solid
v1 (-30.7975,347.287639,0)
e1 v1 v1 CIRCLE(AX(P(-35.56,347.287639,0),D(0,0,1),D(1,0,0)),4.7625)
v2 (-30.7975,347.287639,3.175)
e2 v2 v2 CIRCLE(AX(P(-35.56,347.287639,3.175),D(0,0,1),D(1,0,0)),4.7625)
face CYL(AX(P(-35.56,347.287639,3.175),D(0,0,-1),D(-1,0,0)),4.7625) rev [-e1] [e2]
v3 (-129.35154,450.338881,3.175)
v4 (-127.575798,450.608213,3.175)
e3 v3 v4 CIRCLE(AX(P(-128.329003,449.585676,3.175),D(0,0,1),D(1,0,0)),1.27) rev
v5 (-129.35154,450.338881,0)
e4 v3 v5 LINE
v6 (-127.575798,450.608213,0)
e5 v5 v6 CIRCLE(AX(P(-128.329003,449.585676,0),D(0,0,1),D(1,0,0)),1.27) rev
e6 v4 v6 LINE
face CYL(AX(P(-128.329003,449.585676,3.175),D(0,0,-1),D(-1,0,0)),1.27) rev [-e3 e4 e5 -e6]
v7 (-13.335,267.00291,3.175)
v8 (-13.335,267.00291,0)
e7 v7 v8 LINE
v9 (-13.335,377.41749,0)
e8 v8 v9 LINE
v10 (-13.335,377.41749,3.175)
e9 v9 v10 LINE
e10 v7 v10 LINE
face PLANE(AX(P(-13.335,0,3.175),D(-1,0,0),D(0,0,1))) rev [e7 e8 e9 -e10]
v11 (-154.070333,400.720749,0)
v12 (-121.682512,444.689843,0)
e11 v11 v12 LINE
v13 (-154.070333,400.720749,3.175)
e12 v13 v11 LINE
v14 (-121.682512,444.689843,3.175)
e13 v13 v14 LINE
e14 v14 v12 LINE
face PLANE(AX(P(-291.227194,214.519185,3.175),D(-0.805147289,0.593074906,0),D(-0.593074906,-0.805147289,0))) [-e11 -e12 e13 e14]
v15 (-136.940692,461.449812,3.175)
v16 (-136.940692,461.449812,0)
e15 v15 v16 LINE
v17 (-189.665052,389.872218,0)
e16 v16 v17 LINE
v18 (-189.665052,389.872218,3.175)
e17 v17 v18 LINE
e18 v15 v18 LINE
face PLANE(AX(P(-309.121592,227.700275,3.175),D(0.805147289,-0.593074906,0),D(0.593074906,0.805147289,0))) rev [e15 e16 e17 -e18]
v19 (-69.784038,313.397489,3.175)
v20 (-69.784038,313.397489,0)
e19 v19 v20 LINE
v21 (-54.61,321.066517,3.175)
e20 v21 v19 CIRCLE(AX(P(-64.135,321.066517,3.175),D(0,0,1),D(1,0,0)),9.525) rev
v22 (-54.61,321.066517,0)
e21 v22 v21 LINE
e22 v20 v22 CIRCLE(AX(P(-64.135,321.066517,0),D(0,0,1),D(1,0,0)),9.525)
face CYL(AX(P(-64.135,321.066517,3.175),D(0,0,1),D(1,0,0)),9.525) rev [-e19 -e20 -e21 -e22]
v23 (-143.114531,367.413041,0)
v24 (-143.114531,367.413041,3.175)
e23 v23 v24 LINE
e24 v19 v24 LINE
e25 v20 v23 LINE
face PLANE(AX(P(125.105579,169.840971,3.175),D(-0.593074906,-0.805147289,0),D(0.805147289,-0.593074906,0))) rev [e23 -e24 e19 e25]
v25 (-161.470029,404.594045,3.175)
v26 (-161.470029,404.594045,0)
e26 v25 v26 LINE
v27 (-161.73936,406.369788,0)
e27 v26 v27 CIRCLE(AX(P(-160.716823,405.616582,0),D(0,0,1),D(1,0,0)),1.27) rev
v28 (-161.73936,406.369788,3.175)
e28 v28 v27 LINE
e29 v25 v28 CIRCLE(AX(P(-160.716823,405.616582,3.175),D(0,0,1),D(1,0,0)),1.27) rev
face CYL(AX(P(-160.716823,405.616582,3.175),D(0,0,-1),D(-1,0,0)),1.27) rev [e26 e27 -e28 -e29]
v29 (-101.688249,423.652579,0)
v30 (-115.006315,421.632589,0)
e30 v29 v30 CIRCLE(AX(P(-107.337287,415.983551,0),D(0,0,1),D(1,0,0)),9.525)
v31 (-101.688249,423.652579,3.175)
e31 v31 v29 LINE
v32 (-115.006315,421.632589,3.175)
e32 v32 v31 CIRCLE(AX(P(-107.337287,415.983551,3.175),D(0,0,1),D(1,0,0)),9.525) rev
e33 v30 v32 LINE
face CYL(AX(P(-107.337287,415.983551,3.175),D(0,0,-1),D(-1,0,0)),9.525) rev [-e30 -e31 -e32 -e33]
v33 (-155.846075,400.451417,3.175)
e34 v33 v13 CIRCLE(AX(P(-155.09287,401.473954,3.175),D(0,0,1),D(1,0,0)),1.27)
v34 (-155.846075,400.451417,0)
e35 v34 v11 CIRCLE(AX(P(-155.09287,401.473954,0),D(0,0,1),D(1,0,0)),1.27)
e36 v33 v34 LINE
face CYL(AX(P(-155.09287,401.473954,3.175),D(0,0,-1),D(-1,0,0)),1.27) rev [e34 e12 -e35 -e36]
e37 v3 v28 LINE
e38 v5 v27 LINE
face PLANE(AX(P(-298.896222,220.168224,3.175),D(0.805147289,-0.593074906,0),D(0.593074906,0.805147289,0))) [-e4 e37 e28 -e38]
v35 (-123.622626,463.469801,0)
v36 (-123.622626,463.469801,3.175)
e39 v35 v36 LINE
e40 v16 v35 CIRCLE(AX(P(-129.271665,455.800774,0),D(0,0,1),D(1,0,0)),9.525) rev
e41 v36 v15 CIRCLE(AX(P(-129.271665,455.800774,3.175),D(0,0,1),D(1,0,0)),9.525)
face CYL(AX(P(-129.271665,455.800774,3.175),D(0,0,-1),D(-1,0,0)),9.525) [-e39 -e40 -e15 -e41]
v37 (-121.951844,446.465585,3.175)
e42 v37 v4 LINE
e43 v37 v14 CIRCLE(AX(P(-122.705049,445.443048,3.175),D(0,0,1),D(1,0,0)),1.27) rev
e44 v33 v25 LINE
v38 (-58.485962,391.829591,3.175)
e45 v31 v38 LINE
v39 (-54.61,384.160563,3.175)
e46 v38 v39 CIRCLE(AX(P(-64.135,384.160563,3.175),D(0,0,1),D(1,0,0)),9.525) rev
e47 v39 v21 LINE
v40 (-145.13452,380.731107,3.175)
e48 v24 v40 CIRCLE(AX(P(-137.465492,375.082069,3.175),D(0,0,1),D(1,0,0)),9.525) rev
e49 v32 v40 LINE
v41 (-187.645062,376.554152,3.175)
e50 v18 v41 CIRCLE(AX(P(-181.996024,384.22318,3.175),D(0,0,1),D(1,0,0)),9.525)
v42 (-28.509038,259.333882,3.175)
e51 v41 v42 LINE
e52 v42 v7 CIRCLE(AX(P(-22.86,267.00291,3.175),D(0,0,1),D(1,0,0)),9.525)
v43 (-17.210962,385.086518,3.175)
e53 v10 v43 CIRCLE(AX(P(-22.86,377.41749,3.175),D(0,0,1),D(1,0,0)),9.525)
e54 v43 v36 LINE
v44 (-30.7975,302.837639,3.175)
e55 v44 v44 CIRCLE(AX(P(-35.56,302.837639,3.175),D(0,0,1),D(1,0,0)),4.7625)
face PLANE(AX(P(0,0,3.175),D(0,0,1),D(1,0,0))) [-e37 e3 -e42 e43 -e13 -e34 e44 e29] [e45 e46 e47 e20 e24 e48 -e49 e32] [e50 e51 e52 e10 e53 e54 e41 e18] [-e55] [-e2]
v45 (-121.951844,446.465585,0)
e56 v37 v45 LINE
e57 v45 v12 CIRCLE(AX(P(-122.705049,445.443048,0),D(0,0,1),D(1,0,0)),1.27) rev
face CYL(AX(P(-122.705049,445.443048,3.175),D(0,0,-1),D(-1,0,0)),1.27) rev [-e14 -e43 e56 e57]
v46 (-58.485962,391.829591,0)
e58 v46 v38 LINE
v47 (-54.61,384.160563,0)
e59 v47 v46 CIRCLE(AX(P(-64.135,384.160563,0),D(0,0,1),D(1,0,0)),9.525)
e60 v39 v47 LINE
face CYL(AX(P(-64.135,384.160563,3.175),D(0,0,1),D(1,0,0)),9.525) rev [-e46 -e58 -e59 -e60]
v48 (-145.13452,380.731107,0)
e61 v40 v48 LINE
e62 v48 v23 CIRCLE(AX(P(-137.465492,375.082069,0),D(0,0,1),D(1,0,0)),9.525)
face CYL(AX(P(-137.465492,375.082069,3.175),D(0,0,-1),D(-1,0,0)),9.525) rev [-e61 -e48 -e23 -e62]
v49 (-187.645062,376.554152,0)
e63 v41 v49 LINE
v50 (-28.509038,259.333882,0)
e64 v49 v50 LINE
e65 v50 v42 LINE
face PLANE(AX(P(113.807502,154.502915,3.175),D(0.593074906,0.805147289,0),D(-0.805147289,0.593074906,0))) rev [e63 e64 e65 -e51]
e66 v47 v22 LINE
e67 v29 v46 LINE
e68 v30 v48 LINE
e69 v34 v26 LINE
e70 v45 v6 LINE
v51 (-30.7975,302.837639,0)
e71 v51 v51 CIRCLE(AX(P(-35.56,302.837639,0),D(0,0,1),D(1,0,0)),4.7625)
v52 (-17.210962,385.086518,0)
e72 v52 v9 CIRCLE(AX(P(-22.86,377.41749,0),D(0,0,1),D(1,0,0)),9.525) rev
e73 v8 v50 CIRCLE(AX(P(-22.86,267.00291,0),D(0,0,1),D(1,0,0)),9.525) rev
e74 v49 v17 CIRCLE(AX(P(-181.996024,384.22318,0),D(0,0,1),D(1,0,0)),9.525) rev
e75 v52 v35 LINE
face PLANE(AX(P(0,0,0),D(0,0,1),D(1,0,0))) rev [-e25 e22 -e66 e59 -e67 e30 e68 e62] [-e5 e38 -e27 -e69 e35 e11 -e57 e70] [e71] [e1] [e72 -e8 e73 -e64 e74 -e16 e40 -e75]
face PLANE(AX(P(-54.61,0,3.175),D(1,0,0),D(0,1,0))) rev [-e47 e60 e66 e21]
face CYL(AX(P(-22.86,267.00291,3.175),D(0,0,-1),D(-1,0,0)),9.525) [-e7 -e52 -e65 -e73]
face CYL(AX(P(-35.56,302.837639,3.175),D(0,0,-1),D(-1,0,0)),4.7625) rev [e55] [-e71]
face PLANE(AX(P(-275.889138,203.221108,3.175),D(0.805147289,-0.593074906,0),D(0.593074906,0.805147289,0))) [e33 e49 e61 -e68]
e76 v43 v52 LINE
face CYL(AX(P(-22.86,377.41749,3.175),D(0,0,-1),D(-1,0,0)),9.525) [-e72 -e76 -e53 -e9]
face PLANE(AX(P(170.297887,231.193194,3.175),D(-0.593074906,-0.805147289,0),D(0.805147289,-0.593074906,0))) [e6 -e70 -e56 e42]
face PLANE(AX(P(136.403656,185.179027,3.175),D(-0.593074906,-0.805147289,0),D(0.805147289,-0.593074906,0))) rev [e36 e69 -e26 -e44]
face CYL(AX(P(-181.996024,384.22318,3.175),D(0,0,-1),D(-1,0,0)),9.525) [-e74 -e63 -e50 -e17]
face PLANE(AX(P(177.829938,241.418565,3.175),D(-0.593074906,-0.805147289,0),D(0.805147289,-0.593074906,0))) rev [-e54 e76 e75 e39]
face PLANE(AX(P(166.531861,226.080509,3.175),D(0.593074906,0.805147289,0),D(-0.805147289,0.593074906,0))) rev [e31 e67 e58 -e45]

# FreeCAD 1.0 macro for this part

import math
import FreeCAD as App
import Part
import Sketcher
from FreeCAD import Vector
Q = App.Units.Quantity


def edges_at(feature, points):
    """Names of the edges that pass closest to the given points."""
    edges = feature.Shape.Edges
    near = lambda p: min(range(len(edges)), key=lambda i: edges[i].distToShape(Part.Vertex(*p))[0])
    return sorted({f"Edge{near(p) + 1}" for p in points})


def add_polygon(sketch, points):
    """Adds a closed chain of lines whose ends are joined by coincident constraints."""
    first, n = sketch.GeometryCount, len(points)
    for a, b in zip(points, points[1:] + points[:1]):
        sketch.addGeometry(Part.LineSegment(App.Vector(*a, 0), App.Vector(*b, 0)), False)
    for i in range(n):
        sketch.addConstraint(Sketcher.Constraint("Coincident", first + i, 2, first + (i + 1) % n, 1))

doc = App.newDocument("Part")
body = doc.addObject("PartDesign::Body", "Body")

# Sketch on XY plane
sketch1 = doc.addObject("Sketcher::SketchObject", "Sketch")
body.addObject(sketch1)
sketch1.AttachmentSupport = (doc.XY_Plane, [""])
sketch1.MapMode = "FlatFace"
add_polygon(sketch1, [(-195.3, 382.2), (-13.3, 248.2), (-13.3, 382.2), (-131.3, 469.1)])  # lines 0-3
add_polygon(sketch1, [(-54.6, 302.2), (-150.8, 373.1), (-109.4, 429.3), (-54.6, 389)])  # lines 4-7
sketch1.addGeometry(Part.Circle(Vector(-35.6, 302.8, 0), Vector(0, 0, 1), 4.8), False)  # 8
sketch1.addGeometry(Part.Circle(Vector(-35.6, 347.3, 0), Vector(0, 0, 1), 4.8), False)  # 9
sketch1.addGeometry(Part.LineSegment(Vector(-121.7, 444.7, 0), Vector(-154.1, 400.7, 0)), False)  # 10
sketch1.addGeometry(Part.ArcOfCircle(Part.Circle(Vector(-155.1, 401.5, 0), Vector(0, 0, 1), 1.3), math.radians(-126), math.radians(-36)), False)  # 11
sketch1.addGeometry(Part.LineSegment(Vector(-155.8, 400.5, 0), Vector(-161.5, 404.6, 0)), False)  # 12
sketch1.addGeometry(Part.ArcOfCircle(Part.Circle(Vector(-160.7, 405.6, 0), Vector(0, 0, 1), 1.3), math.radians(144), math.radians(234)), False)  # 13
sketch1.addGeometry(Part.LineSegment(Vector(-161.7, 406.4, 0), Vector(-129.4, 450.3, 0)), False)  # 14
sketch1.addGeometry(Part.ArcOfCircle(Part.Circle(Vector(-128.3, 449.6, 0), Vector(0, 0, 1), 1.3), math.radians(54), math.radians(144)), False)  # 15
sketch1.addGeometry(Part.LineSegment(Vector(-127.6, 450.6, 0), Vector(-122, 446.5, 0)), False)  # 16
sketch1.addGeometry(Part.ArcOfCircle(Part.Circle(Vector(-122.7, 445.4, 0), Vector(0, 0, 1), 1.3), math.radians(-36), math.radians(54)), False)  # 17
sketch1.addConstraint(Sketcher.Constraint("Tangent", 10, 2, 11, 2))
sketch1.addConstraint(Sketcher.Constraint("Tangent", 11, 1, 12, 1))
sketch1.addConstraint(Sketcher.Constraint("Tangent", 12, 2, 13, 2))
sketch1.addConstraint(Sketcher.Constraint("Tangent", 13, 1, 14, 1))
sketch1.addConstraint(Sketcher.Constraint("Tangent", 14, 2, 15, 2))
sketch1.addConstraint(Sketcher.Constraint("Tangent", 15, 1, 16, 1))
sketch1.addConstraint(Sketcher.Constraint("Tangent", 16, 2, 17, 2))
sketch1.addConstraint(Sketcher.Constraint("Tangent", 17, 1, 10, 1))
sketch1.addConstraint(Sketcher.Constraint("Vertical", 1))
sketch1.addConstraint(Sketcher.Constraint("Vertical", 7))
sketch1.addConstraint(Sketcher.Constraint("Equal", 8, 9))
sketch1.addConstraint(Sketcher.Constraint("Equal", 11, 13))
sketch1.addConstraint(Sketcher.Constraint("Equal", 13, 15))
sketch1.addConstraint(Sketcher.Constraint("Equal", 15, 17))
sketch1.addConstraint(Sketcher.Constraint("Parallel", 0, 2))
sketch1.addConstraint(Sketcher.Constraint("Perpendicular", 2, 3))
sketch1.addConstraint(Sketcher.Constraint("Perpendicular", 3, 4))
sketch1.addConstraint(Sketcher.Constraint("Perpendicular", 4, 5))
sketch1.addConstraint(Sketcher.Constraint("Perpendicular", 5, 6))
sketch1.addConstraint(Sketcher.Constraint("Perpendicular", 6, 10))
sketch1.addConstraint(Sketcher.Constraint("Perpendicular", 10, 12))
sketch1.addConstraint(Sketcher.Constraint("Perpendicular", 12, 14))
sketch1.addConstraint(Sketcher.Constraint("Perpendicular", 14, 16))
sketch1.addConstraint(Sketcher.Constraint("Vertical", 8, 3, 9, 3))
sketch1.addConstraint(Sketcher.Constraint("Radius", 11, Q("0.05 in")))
sketch1.addConstraint(Sketcher.Constraint("Diameter", 8, Q("0.375 in")))
sketch1.addConstraint(Sketcher.Constraint("DistanceX", 8, 3, -1, 1, Q("1.4 in")))
sketch1.addConstraint(Sketcher.Constraint("Distance", 3, Q("4.25 in")))
sketch1.addConstraint(Sketcher.Constraint("Distance", 5, Q("2.75 in")))
sketch1.addConstraint(Sketcher.Constraint("Distance", 10, Q("2.15 in")))
sketch1.addConstraint(Sketcher.Constraint("DistanceX", 6, 2, -1, 1, Q("2.15 in")))
sketch1.addConstraint(Sketcher.Constraint("DistanceY", 8, 3, 9, 3, Q("1.75 in")))
sketch1.addConstraint(Sketcher.Constraint("Distance", 12, Q("0.275 in")))
sketch1.addConstraint(Sketcher.Constraint("DistanceX", 0, 2, -1, 1, Q("0.525 in")))
sketch1.addConstraint(Sketcher.Constraint("Distance", 2, 146.5032))
sketch1.addConstraint(Sketcher.Constraint("Distance", 6, 67.996598))
sketch1.addConstraint(Sketcher.Constraint("DistanceY", 9, 3, 6, 2, 41.686902))
sketch1.addConstraint(Sketcher.Constraint("DistanceY", 1, 1, 1, 2, 134.074848))
sketch1.addConstraint(Sketcher.Constraint("DistanceY", -1, 1, 8, 3, 302.837639))
sketch1.addConstraint(Sketcher.Constraint("DistanceX", 11, 3, -1, 1, 155.09287))
sketch1.addConstraint(Sketcher.Constraint("DistanceY", -1, 1, 0, 2, 248.156621))
sketch1.addConstraint(Sketcher.Constraint("DistanceY", -1, 1, 10, 2, 400.720749))
pad1 = doc.addObject("PartDesign::Pad", "Pad")
body.addObject(pad1)
pad1.Profile = sketch1
pad1.Length = Q("0.125 in")
doc.recompute()

fillet = doc.addObject("PartDesign::Fillet", "Fillet")
body.addObject(fillet)
fillet.Base = (pad1, edges_at(pad1, [
    (-54.61, 388.975, 1.587),
    (-109.357, 429.302, 1.587),
    (-150.784, 373.062, 1.587),
    (-54.61, 302.22, 1.587),
    (-131.292, 469.119, 1.587),
    (-13.335, 382.231, 1.587),
    (-13.335, 248.157, 1.587),
    (-195.314, 382.203, 1.587),
]))
fillet.Radius = Q("0.375 in")

doc.recompute()
